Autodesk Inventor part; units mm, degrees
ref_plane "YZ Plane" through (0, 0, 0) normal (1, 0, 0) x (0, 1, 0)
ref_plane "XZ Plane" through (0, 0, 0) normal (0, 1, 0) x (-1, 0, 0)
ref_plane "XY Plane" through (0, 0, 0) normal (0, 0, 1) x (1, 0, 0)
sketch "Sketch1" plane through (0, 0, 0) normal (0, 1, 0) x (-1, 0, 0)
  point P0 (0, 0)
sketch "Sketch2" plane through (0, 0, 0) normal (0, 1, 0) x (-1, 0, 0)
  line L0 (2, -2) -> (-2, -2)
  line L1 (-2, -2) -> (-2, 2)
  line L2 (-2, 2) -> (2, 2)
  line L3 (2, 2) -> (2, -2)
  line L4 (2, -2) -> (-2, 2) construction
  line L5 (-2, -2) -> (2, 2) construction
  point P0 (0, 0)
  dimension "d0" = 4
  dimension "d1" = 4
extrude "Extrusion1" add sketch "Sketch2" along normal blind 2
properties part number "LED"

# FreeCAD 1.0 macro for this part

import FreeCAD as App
import Part
import Sketcher
from FreeCAD import Vector
Q = App.Units.Quantity

doc = App.newDocument("Part")
body = doc.addObject("PartDesign::Body", "Body")

# Sketch on XZ plane
sketch1 = body.newObject("Sketcher::SketchObject", "Sketch")
sketch1.AttachmentSupport = (doc.getObject("XZ_Plane"), [""])
sketch1.MapMode = "FlatFace"
sketch1.addGeometry(Part.LineSegment(Vector(2, -2, 0), Vector(-2, -2, 0)), False)
sketch1.addGeometry(Part.LineSegment(Vector(-2, -2, 0), Vector(-2, 2, 0)), False)
sketch1.addGeometry(Part.LineSegment(Vector(-2, 2, 0), Vector(2, 2, 0)), False)
sketch1.addGeometry(Part.LineSegment(Vector(2, 2, 0), Vector(2, -2, 0)), False)
sketch1.addConstraint(Sketcher.Constraint("Coincident", 0, 2, 1, 1))
sketch1.addConstraint(Sketcher.Constraint("Coincident", 1, 2, 2, 1))
sketch1.addConstraint(Sketcher.Constraint("Coincident", 2, 2, 3, 1))
sketch1.addConstraint(Sketcher.Constraint("Coincident", 3, 2, 0, 1))
sketch1.addConstraint(Sketcher.Constraint("Horizontal", 0))
sketch1.addConstraint(Sketcher.Constraint("Vertical", 1))
sketch1.addConstraint(Sketcher.Constraint("Horizontal", 2))
sketch1.addConstraint(Sketcher.Constraint("Vertical", 3))
sketch1.addConstraint(Sketcher.Constraint("Symmetric", 0, 2, 2, 2, -1, 1))
sketch1.addConstraint(Sketcher.Constraint("Equal", 2, 1))
sketch1.addConstraint(Sketcher.Constraint("DistanceX", 0, 2, 0, 1, Q("4 mm")))
pad1 = body.newObject("PartDesign::Pad", "Pad")
pad1.Profile = sketch1
pad1.Length = 2
pad1.Reversed = True

doc.recompute()
